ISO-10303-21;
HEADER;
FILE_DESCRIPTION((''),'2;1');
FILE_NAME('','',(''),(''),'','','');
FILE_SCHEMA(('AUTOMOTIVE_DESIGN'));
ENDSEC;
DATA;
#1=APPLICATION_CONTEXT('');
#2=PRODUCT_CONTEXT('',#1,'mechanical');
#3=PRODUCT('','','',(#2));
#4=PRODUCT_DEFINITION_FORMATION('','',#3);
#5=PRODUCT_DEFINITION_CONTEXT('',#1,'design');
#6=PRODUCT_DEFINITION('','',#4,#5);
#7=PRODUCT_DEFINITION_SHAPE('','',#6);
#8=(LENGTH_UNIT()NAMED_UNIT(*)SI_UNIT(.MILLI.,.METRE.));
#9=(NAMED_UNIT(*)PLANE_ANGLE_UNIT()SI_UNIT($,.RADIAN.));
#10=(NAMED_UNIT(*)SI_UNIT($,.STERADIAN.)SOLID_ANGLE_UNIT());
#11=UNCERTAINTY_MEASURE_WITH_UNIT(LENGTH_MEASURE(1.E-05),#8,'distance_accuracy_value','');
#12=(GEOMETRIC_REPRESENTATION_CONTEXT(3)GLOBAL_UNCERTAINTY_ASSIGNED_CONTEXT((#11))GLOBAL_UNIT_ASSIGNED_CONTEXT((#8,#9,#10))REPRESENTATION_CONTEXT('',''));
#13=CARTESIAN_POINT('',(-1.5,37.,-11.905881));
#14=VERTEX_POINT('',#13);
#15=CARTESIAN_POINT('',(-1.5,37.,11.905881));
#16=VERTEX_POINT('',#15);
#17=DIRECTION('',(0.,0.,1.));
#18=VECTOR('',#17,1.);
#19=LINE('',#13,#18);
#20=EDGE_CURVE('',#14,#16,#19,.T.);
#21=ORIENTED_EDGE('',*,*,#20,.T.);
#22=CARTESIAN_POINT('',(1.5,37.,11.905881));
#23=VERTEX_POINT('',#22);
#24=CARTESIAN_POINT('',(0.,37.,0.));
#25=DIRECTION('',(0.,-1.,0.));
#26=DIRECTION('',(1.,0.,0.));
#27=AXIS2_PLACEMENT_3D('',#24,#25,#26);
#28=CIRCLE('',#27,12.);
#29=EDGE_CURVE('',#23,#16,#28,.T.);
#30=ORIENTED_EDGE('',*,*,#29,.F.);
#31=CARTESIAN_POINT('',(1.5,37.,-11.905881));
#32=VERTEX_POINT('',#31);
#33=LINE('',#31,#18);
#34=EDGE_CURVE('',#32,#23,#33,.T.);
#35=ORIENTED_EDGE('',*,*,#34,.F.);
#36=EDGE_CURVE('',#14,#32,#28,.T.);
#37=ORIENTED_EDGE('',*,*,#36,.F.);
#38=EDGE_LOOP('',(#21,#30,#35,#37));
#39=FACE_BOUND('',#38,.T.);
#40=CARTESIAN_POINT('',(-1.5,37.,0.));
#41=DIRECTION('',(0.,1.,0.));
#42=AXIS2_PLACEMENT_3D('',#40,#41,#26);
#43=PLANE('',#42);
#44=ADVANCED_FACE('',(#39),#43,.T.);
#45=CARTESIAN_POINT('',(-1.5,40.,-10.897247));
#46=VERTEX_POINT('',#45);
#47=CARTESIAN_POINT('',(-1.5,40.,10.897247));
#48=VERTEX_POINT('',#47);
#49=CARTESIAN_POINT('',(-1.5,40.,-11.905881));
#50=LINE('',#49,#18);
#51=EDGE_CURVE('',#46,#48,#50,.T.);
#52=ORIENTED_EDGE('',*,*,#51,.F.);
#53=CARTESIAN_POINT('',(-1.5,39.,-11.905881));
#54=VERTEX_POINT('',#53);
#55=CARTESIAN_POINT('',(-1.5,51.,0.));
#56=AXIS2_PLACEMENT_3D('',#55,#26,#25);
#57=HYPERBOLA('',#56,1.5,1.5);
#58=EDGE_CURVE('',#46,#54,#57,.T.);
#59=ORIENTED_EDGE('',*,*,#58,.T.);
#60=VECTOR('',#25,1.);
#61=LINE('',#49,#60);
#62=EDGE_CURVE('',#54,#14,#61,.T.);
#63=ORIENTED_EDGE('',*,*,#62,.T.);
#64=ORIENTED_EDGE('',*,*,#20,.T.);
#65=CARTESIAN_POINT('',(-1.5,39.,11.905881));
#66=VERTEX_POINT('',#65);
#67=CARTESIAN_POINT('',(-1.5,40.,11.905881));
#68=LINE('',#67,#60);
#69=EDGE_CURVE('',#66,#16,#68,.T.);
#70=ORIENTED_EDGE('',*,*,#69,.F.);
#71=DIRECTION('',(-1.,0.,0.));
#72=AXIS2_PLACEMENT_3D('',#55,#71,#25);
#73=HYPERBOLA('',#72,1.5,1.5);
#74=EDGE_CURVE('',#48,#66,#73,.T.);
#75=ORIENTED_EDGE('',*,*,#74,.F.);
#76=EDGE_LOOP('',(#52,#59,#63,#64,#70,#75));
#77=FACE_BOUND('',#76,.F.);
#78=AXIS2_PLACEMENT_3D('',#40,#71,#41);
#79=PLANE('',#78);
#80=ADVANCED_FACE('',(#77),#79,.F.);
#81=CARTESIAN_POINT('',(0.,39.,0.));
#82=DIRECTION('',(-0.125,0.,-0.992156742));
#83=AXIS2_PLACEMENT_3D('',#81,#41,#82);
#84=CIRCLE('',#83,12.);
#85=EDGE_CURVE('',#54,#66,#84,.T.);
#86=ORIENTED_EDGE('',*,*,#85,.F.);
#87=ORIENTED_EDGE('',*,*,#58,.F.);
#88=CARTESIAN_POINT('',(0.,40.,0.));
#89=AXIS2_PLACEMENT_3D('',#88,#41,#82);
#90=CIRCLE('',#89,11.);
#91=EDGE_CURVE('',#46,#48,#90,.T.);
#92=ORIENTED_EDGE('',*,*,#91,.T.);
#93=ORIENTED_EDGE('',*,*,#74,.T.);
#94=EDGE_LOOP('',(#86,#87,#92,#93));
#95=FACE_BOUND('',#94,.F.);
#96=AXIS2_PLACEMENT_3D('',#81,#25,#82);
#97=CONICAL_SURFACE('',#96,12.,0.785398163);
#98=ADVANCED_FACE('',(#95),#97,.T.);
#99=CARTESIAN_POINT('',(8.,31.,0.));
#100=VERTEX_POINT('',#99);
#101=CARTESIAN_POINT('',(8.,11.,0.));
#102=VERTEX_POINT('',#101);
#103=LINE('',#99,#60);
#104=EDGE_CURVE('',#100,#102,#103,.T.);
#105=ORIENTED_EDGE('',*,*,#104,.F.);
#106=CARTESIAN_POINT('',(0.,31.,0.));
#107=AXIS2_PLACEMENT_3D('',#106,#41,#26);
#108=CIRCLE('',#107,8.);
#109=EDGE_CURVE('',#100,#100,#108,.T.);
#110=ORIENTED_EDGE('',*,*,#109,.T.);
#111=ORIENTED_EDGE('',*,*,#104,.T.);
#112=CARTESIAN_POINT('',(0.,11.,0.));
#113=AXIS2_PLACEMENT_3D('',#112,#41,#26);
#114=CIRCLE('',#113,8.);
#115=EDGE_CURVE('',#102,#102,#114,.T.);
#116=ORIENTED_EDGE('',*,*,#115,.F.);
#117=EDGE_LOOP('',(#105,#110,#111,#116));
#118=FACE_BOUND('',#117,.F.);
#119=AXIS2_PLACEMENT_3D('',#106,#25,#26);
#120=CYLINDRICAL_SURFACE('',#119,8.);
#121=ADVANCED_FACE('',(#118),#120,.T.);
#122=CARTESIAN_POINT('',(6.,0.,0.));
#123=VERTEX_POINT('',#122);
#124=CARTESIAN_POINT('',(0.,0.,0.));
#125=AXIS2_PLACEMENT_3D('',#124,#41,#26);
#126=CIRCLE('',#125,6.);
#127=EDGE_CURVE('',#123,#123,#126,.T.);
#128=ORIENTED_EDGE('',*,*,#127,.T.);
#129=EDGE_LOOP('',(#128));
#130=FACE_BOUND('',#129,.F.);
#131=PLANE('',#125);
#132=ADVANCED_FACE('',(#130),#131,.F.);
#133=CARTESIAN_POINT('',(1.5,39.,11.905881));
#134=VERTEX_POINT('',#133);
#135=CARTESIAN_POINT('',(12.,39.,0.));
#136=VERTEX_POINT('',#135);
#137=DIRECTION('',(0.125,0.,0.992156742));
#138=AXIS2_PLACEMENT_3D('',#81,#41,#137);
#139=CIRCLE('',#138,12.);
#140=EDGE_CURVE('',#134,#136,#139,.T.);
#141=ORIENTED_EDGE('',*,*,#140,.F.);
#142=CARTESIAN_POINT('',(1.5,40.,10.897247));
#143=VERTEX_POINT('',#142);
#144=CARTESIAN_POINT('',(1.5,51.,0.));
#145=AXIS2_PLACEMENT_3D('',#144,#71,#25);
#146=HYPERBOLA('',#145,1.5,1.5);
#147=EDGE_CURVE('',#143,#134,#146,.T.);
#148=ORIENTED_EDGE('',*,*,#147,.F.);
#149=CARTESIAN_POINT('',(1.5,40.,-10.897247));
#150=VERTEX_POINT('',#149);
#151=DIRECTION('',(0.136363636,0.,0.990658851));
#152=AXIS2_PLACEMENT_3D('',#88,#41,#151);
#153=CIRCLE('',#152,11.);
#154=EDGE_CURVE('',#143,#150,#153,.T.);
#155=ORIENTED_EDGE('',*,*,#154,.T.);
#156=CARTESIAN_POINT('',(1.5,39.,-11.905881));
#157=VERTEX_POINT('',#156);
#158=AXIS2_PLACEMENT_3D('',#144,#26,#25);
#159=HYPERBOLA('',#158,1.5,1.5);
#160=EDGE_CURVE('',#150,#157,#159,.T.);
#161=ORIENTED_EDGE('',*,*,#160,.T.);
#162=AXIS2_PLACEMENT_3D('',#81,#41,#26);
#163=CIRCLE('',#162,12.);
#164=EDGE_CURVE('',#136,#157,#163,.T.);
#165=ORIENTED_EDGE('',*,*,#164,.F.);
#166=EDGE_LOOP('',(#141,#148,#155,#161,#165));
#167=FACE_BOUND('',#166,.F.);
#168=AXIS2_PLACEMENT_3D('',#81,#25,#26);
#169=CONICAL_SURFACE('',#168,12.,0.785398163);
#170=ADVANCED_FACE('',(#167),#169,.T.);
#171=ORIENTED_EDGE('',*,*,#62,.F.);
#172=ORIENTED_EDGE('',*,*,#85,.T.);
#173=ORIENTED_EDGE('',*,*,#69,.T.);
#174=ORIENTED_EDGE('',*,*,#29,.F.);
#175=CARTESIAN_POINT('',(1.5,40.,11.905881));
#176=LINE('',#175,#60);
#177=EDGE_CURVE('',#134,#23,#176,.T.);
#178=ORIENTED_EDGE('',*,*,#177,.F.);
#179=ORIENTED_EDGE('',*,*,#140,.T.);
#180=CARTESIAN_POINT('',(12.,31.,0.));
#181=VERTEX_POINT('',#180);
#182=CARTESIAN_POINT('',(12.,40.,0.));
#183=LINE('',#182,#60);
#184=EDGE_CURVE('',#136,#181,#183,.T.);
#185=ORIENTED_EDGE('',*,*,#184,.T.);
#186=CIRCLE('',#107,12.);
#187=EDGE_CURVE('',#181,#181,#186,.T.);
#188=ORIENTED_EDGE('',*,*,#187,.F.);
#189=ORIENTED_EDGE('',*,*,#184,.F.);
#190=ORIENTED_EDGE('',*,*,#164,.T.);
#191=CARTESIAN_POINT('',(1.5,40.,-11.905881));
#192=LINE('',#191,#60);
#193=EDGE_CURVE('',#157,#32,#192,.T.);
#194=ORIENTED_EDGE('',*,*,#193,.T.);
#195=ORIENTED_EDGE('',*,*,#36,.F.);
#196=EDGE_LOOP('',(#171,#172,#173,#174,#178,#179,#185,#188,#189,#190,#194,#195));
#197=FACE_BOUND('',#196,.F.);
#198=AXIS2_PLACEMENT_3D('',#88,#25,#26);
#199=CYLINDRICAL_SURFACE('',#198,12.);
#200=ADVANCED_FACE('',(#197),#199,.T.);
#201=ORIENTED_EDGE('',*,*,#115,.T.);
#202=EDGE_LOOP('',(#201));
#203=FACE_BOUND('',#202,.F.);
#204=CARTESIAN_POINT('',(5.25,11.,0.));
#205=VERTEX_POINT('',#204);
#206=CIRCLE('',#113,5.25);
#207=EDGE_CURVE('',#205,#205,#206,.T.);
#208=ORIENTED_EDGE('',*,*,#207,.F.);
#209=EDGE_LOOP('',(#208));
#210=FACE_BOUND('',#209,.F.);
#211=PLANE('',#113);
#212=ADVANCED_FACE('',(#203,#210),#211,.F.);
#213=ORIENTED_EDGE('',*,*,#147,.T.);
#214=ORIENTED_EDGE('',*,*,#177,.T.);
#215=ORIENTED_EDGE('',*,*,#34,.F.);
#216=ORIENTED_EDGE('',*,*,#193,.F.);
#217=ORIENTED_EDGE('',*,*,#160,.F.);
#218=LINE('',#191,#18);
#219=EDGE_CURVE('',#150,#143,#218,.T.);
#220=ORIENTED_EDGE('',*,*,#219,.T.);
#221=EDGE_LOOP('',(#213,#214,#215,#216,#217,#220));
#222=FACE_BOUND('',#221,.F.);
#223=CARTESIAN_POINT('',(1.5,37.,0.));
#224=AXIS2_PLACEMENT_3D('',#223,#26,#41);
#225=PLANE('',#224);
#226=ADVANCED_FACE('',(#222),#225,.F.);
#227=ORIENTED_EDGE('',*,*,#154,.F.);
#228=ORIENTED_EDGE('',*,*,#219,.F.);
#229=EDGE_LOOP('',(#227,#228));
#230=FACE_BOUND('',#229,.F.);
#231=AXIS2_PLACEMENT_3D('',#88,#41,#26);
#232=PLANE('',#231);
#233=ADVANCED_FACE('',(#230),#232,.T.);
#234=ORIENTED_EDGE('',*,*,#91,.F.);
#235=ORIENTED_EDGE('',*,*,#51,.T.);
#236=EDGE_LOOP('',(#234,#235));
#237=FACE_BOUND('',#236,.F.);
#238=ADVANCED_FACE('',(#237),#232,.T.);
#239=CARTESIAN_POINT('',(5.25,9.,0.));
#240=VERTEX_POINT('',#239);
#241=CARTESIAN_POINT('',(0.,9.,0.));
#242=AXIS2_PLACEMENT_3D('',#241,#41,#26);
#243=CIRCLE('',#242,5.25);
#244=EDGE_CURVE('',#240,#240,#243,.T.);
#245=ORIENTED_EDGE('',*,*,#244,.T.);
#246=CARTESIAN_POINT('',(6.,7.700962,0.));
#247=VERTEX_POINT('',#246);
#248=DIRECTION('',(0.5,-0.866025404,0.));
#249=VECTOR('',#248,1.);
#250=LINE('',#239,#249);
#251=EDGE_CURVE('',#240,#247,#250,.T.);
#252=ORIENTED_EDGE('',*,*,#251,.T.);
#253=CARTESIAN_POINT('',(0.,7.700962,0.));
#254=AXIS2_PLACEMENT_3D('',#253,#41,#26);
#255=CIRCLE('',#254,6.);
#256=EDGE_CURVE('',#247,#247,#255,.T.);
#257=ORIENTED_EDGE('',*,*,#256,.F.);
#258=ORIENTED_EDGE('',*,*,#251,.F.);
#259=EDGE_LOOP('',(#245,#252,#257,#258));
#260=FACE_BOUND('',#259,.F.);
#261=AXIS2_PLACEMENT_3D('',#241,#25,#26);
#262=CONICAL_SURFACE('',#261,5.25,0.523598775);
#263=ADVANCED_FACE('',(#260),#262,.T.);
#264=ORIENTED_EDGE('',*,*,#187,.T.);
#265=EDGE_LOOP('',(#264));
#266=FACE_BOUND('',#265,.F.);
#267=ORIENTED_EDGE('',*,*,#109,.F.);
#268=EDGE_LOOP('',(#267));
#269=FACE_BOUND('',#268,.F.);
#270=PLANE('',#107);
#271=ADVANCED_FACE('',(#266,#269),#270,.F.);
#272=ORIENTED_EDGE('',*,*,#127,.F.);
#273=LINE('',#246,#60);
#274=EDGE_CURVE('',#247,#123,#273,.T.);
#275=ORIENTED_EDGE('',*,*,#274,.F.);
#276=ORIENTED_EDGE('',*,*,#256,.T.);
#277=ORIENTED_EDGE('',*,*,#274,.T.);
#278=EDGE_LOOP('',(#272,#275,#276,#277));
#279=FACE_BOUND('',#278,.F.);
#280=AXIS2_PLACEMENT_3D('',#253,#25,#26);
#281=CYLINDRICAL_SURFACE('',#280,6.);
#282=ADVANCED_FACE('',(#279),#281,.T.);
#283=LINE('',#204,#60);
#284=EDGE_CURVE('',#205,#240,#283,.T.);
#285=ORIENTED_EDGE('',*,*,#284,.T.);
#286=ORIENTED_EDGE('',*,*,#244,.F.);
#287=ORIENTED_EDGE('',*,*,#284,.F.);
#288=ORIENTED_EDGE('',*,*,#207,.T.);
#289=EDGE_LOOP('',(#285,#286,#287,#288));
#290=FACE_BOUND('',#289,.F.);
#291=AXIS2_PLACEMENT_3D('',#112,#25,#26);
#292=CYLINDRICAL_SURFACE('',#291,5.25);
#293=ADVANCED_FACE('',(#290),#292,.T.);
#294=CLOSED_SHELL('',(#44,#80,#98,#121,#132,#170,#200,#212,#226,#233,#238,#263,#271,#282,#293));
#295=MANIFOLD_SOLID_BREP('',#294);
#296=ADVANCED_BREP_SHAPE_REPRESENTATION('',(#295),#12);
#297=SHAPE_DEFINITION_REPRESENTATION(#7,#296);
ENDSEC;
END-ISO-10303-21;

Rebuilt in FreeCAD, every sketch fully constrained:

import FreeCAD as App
import Part
import Sketcher

V = App.Vector
Q = App.Units.Quantity


def edges_at(feature, points):
    """Names of the edges that pass closest to the given points."""
    edges = feature.Shape.Edges
    near = lambda p: min(range(len(edges)), key=lambda i: edges[i].distToShape(Part.Vertex(*p))[0])
    return sorted({f"Edge{near(p) + 1}" for p in points})

doc = App.newDocument("Part")
body = doc.addObject("PartDesign::Body", "Body")

# Sketch on XY plane
sketch1 = body.newObject("Sketcher::SketchObject", "Sketch")
sketch1.AttachmentSupport = (doc.getObject("XY_Plane"), [""])
sketch1.MapMode = "FlatFace"
sketch1.addGeometry([
    Part.LineSegment(V(12, 40, 0), V(0, 40, 0)),  # 0
    Part.LineSegment(V(0, 40, 0), V(0, 0, 0)),  # 1
    Part.LineSegment(V(0, 0, 0), V(6, 0, 0)),  # 2
    Part.LineSegment(V(6, 0, 0), V(6, 7.7, 0)),  # 3
    Part.LineSegment(V(6, 7.7, 0), V(5.2, 9, 0)),  # 4
    Part.LineSegment(V(5.2, 9, 0), V(5.2, 11, 0)),  # 5
    Part.LineSegment(V(5.2, 11, 0), V(8, 11, 0)),  # 6
    Part.LineSegment(V(8, 11, 0), V(8, 31, 0)),  # 7
    Part.LineSegment(V(8, 31, 0), V(12, 31, 0)),  # 8
    Part.LineSegment(V(12, 31, 0), V(12, 40, 0)),  # 9
], False)
sketch1.addConstraint([
    Sketcher.Constraint("Coincident", 0, 2, 1, 1),
    Sketcher.Constraint("Coincident", 1, 2, 2, 1),
    Sketcher.Constraint("Coincident", 2, 2, 3, 1),
    Sketcher.Constraint("Coincident", 3, 2, 4, 1),
    Sketcher.Constraint("Coincident", 4, 2, 5, 1),
    Sketcher.Constraint("Coincident", 5, 2, 6, 1),
    Sketcher.Constraint("Coincident", 6, 2, 7, 1),
    Sketcher.Constraint("Coincident", 7, 2, 8, 1),
    Sketcher.Constraint("Coincident", 8, 2, 9, 1),
    Sketcher.Constraint("Coincident", 9, 2, 0, 1),
    Sketcher.Constraint("Horizontal", 0),
    Sketcher.Constraint("Vertical", 1),
    Sketcher.Constraint("Horizontal", 2),
    Sketcher.Constraint("Vertical", 3),
    Sketcher.Constraint("Vertical", 5),
    Sketcher.Constraint("Horizontal", 6),
    Sketcher.Constraint("Vertical", 7),
    Sketcher.Constraint("Horizontal", 8),
    Sketcher.Constraint("Vertical", 9),
    Sketcher.Constraint("Coincident", 1, 2, -1, 1),
    Sketcher.Constraint("DistanceX", 0, 2, 0, 1, Q("12 mm")),
    Sketcher.Constraint("DistanceX", 2, 1, 2, 2, Q("6 mm")),
    Sketcher.Constraint("DistanceX", 8, 1, 8, 2, Q("4 mm")),
    Sketcher.Constraint("DistanceY", 1, 2, 1, 1, Q("40 mm")),
    Sketcher.Constraint("DistanceY", 5, 1, 5, 2, Q("2 mm")),
    Sketcher.Constraint("DistanceY", 7, 1, 7, 2, Q("20 mm")),
    Sketcher.Constraint("DistanceY", 9, 1, 9, 2, Q("9 mm")),
    Sketcher.Constraint("Angle", 4, Q("120 deg")),
    Sketcher.Constraint("Distance", 4, Q("1.5 mm")),
])
revolution = body.newObject("PartDesign::Revolution", "Revolution")
revolution.Profile = sketch1
revolution.ReferenceAxis = (sketch1, ["V_Axis"])
revolution.Angle = 360

# Sketch on XY plane
sketch2 = body.newObject("Sketcher::SketchObject", "Sketch001")
sketch2.AttachmentSupport = (doc.getObject("XY_Plane"), [""])
sketch2.MapMode = "FlatFace"
sketch2.addGeometry([
    Part.LineSegment(V(-1.5, 40, 0), V(-1.5, 37, 0)),
    Part.LineSegment(V(-1.5, 37, 0), V(1.5, 37, 0)),
    Part.LineSegment(V(1.5, 37, 0), V(1.5, 40, 0)),
    Part.LineSegment(V(1.5, 40, 0), V(-1.5, 40, 0)),
], False)
sketch2.addConstraint([
    Sketcher.Constraint("Coincident", 0, 2, 1, 1),
    Sketcher.Constraint("Coincident", 1, 2, 2, 1),
    Sketcher.Constraint("Coincident", 2, 2, 3, 1),
    Sketcher.Constraint("Coincident", 3, 2, 0, 1),
    Sketcher.Constraint("Vertical", 0),
    Sketcher.Constraint("Horizontal", 1),
    Sketcher.Constraint("Vertical", 2),
    Sketcher.Constraint("Horizontal", 3),
    Sketcher.Constraint("Equal", 3, 0),
    Sketcher.Constraint("DistanceX", 1, 1, 1, 2, Q("3 mm")),
    Sketcher.Constraint("DistanceY", -1, 1, 0, 2, Q("37 mm")),
    Sketcher.Constraint("DistanceX", 0, 2, -1, 1, Q("1.5 mm")),
])
pocket1 = body.newObject("PartDesign::Pocket", "Pocket")
pocket1.Profile = sketch2
pocket1.Type = "ThroughAll"
pocket1.Midplane = True
doc.recompute()

chamfer = body.newObject("PartDesign::Chamfer", "Chamfer")
chamfer.Base = (pocket1, edges_at(pocket1, [(9, 40, -7.937), (-12, 40, 0)]))
chamfer.Size = 1

doc.recompute()
